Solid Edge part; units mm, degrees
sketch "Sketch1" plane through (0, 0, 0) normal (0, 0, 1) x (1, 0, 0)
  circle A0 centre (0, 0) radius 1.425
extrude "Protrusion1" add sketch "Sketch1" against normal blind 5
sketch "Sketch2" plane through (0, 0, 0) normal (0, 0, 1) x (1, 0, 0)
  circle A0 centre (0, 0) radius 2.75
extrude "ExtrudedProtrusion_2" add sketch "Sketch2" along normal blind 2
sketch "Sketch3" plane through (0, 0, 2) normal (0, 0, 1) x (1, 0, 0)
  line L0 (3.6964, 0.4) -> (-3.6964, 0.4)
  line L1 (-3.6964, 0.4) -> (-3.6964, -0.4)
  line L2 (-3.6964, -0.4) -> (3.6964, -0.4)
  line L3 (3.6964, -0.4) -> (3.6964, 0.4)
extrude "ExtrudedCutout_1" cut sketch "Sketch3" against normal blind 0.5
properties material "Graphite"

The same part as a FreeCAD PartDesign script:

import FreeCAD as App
import Part
import Sketcher

V = App.Vector

doc = App.newDocument("Part")
body = doc.addObject("PartDesign::Body", "Body")

# Sketch on XY plane
sketch1 = body.newObject("Sketcher::SketchObject", "Sketch")
sketch1.AttachmentSupport = (doc.getObject("XY_Plane"), [""])
sketch1.MapMode = "FlatFace"
sketch1.addGeometry(Part.Circle(V(0, 0, 0), V(0, 0, 1), 1.4), False)
sketch1.addConstraint(Sketcher.Constraint("Coincident", 0, 3, -1, 1))
sketch1.addConstraint(Sketcher.Constraint("Diameter", 0, 2.85))
pad1 = body.newObject("PartDesign::Pad", "Pad")
pad1.Profile = sketch1
pad1.Length = 5
pad1.Reversed = True

# Sketch on XY plane
sketch2 = body.newObject("Sketcher::SketchObject", "Sketch001")
sketch2.AttachmentSupport = (doc.getObject("XY_Plane"), [""])
sketch2.MapMode = "FlatFace"
sketch2.addGeometry(Part.Circle(V(0, 0, 0), V(0, 0, 1), 2.8), False)
sketch2.addConstraint(Sketcher.Constraint("Coincident", 0, 3, -1, 1))
sketch2.addConstraint(Sketcher.Constraint("Diameter", 0, 5.5))
pad2 = body.newObject("PartDesign::Pad", "Pad001")
pad2.Profile = sketch2
pad2.Length = 2

# Sketch on XY plane
sketch3 = body.newObject("Sketcher::SketchObject", "Sketch002")
sketch3.AttachmentSupport = (doc.getObject("XY_Plane"), [""])
sketch3.MapMode = "FlatFace"
sketch3.AttachmentOffset = App.Placement(V(0, 0, 2), App.Rotation())
sketch3.addGeometry(Part.LineSegment(V(3.7, -0.4, 0), V(3.7, 0.4, 0)), False)
sketch3.addGeometry(Part.LineSegment(V(3.7, 0.4, 0), V(-3.7, 0.4, 0)), False)
sketch3.addGeometry(Part.LineSegment(V(-3.7, 0.4, 0), V(-3.7, -0.4, 0)), False)
sketch3.addGeometry(Part.LineSegment(V(-3.7, -0.4, 0), V(3.7, -0.4, 0)), False)
sketch3.addConstraint(Sketcher.Constraint("Coincident", 0, 2, 1, 1))
sketch3.addConstraint(Sketcher.Constraint("Coincident", 1, 2, 2, 1))
sketch3.addConstraint(Sketcher.Constraint("Coincident", 2, 2, 3, 1))
sketch3.addConstraint(Sketcher.Constraint("Coincident", 3, 2, 0, 1))
sketch3.addConstraint(Sketcher.Constraint("Vertical", 0))
sketch3.addConstraint(Sketcher.Constraint("Horizontal", 1))
sketch3.addConstraint(Sketcher.Constraint("Vertical", 2))
sketch3.addConstraint(Sketcher.Constraint("Horizontal", 3))
sketch3.addConstraint(Sketcher.Constraint("Symmetric", 0, 2, 2, 2, -1, 1))
sketch3.addConstraint(Sketcher.Constraint("DistanceY", 0, 1, 0, 2, 0.8))
sketch3.addConstraint(Sketcher.Constraint("DistanceX", 1, 2, 1, 1, 7.3928))
pocket1 = body.newObject("PartDesign::Pocket", "Pocket")
pocket1.Profile = sketch3
pocket1.Length = 0.5

doc.recompute()
